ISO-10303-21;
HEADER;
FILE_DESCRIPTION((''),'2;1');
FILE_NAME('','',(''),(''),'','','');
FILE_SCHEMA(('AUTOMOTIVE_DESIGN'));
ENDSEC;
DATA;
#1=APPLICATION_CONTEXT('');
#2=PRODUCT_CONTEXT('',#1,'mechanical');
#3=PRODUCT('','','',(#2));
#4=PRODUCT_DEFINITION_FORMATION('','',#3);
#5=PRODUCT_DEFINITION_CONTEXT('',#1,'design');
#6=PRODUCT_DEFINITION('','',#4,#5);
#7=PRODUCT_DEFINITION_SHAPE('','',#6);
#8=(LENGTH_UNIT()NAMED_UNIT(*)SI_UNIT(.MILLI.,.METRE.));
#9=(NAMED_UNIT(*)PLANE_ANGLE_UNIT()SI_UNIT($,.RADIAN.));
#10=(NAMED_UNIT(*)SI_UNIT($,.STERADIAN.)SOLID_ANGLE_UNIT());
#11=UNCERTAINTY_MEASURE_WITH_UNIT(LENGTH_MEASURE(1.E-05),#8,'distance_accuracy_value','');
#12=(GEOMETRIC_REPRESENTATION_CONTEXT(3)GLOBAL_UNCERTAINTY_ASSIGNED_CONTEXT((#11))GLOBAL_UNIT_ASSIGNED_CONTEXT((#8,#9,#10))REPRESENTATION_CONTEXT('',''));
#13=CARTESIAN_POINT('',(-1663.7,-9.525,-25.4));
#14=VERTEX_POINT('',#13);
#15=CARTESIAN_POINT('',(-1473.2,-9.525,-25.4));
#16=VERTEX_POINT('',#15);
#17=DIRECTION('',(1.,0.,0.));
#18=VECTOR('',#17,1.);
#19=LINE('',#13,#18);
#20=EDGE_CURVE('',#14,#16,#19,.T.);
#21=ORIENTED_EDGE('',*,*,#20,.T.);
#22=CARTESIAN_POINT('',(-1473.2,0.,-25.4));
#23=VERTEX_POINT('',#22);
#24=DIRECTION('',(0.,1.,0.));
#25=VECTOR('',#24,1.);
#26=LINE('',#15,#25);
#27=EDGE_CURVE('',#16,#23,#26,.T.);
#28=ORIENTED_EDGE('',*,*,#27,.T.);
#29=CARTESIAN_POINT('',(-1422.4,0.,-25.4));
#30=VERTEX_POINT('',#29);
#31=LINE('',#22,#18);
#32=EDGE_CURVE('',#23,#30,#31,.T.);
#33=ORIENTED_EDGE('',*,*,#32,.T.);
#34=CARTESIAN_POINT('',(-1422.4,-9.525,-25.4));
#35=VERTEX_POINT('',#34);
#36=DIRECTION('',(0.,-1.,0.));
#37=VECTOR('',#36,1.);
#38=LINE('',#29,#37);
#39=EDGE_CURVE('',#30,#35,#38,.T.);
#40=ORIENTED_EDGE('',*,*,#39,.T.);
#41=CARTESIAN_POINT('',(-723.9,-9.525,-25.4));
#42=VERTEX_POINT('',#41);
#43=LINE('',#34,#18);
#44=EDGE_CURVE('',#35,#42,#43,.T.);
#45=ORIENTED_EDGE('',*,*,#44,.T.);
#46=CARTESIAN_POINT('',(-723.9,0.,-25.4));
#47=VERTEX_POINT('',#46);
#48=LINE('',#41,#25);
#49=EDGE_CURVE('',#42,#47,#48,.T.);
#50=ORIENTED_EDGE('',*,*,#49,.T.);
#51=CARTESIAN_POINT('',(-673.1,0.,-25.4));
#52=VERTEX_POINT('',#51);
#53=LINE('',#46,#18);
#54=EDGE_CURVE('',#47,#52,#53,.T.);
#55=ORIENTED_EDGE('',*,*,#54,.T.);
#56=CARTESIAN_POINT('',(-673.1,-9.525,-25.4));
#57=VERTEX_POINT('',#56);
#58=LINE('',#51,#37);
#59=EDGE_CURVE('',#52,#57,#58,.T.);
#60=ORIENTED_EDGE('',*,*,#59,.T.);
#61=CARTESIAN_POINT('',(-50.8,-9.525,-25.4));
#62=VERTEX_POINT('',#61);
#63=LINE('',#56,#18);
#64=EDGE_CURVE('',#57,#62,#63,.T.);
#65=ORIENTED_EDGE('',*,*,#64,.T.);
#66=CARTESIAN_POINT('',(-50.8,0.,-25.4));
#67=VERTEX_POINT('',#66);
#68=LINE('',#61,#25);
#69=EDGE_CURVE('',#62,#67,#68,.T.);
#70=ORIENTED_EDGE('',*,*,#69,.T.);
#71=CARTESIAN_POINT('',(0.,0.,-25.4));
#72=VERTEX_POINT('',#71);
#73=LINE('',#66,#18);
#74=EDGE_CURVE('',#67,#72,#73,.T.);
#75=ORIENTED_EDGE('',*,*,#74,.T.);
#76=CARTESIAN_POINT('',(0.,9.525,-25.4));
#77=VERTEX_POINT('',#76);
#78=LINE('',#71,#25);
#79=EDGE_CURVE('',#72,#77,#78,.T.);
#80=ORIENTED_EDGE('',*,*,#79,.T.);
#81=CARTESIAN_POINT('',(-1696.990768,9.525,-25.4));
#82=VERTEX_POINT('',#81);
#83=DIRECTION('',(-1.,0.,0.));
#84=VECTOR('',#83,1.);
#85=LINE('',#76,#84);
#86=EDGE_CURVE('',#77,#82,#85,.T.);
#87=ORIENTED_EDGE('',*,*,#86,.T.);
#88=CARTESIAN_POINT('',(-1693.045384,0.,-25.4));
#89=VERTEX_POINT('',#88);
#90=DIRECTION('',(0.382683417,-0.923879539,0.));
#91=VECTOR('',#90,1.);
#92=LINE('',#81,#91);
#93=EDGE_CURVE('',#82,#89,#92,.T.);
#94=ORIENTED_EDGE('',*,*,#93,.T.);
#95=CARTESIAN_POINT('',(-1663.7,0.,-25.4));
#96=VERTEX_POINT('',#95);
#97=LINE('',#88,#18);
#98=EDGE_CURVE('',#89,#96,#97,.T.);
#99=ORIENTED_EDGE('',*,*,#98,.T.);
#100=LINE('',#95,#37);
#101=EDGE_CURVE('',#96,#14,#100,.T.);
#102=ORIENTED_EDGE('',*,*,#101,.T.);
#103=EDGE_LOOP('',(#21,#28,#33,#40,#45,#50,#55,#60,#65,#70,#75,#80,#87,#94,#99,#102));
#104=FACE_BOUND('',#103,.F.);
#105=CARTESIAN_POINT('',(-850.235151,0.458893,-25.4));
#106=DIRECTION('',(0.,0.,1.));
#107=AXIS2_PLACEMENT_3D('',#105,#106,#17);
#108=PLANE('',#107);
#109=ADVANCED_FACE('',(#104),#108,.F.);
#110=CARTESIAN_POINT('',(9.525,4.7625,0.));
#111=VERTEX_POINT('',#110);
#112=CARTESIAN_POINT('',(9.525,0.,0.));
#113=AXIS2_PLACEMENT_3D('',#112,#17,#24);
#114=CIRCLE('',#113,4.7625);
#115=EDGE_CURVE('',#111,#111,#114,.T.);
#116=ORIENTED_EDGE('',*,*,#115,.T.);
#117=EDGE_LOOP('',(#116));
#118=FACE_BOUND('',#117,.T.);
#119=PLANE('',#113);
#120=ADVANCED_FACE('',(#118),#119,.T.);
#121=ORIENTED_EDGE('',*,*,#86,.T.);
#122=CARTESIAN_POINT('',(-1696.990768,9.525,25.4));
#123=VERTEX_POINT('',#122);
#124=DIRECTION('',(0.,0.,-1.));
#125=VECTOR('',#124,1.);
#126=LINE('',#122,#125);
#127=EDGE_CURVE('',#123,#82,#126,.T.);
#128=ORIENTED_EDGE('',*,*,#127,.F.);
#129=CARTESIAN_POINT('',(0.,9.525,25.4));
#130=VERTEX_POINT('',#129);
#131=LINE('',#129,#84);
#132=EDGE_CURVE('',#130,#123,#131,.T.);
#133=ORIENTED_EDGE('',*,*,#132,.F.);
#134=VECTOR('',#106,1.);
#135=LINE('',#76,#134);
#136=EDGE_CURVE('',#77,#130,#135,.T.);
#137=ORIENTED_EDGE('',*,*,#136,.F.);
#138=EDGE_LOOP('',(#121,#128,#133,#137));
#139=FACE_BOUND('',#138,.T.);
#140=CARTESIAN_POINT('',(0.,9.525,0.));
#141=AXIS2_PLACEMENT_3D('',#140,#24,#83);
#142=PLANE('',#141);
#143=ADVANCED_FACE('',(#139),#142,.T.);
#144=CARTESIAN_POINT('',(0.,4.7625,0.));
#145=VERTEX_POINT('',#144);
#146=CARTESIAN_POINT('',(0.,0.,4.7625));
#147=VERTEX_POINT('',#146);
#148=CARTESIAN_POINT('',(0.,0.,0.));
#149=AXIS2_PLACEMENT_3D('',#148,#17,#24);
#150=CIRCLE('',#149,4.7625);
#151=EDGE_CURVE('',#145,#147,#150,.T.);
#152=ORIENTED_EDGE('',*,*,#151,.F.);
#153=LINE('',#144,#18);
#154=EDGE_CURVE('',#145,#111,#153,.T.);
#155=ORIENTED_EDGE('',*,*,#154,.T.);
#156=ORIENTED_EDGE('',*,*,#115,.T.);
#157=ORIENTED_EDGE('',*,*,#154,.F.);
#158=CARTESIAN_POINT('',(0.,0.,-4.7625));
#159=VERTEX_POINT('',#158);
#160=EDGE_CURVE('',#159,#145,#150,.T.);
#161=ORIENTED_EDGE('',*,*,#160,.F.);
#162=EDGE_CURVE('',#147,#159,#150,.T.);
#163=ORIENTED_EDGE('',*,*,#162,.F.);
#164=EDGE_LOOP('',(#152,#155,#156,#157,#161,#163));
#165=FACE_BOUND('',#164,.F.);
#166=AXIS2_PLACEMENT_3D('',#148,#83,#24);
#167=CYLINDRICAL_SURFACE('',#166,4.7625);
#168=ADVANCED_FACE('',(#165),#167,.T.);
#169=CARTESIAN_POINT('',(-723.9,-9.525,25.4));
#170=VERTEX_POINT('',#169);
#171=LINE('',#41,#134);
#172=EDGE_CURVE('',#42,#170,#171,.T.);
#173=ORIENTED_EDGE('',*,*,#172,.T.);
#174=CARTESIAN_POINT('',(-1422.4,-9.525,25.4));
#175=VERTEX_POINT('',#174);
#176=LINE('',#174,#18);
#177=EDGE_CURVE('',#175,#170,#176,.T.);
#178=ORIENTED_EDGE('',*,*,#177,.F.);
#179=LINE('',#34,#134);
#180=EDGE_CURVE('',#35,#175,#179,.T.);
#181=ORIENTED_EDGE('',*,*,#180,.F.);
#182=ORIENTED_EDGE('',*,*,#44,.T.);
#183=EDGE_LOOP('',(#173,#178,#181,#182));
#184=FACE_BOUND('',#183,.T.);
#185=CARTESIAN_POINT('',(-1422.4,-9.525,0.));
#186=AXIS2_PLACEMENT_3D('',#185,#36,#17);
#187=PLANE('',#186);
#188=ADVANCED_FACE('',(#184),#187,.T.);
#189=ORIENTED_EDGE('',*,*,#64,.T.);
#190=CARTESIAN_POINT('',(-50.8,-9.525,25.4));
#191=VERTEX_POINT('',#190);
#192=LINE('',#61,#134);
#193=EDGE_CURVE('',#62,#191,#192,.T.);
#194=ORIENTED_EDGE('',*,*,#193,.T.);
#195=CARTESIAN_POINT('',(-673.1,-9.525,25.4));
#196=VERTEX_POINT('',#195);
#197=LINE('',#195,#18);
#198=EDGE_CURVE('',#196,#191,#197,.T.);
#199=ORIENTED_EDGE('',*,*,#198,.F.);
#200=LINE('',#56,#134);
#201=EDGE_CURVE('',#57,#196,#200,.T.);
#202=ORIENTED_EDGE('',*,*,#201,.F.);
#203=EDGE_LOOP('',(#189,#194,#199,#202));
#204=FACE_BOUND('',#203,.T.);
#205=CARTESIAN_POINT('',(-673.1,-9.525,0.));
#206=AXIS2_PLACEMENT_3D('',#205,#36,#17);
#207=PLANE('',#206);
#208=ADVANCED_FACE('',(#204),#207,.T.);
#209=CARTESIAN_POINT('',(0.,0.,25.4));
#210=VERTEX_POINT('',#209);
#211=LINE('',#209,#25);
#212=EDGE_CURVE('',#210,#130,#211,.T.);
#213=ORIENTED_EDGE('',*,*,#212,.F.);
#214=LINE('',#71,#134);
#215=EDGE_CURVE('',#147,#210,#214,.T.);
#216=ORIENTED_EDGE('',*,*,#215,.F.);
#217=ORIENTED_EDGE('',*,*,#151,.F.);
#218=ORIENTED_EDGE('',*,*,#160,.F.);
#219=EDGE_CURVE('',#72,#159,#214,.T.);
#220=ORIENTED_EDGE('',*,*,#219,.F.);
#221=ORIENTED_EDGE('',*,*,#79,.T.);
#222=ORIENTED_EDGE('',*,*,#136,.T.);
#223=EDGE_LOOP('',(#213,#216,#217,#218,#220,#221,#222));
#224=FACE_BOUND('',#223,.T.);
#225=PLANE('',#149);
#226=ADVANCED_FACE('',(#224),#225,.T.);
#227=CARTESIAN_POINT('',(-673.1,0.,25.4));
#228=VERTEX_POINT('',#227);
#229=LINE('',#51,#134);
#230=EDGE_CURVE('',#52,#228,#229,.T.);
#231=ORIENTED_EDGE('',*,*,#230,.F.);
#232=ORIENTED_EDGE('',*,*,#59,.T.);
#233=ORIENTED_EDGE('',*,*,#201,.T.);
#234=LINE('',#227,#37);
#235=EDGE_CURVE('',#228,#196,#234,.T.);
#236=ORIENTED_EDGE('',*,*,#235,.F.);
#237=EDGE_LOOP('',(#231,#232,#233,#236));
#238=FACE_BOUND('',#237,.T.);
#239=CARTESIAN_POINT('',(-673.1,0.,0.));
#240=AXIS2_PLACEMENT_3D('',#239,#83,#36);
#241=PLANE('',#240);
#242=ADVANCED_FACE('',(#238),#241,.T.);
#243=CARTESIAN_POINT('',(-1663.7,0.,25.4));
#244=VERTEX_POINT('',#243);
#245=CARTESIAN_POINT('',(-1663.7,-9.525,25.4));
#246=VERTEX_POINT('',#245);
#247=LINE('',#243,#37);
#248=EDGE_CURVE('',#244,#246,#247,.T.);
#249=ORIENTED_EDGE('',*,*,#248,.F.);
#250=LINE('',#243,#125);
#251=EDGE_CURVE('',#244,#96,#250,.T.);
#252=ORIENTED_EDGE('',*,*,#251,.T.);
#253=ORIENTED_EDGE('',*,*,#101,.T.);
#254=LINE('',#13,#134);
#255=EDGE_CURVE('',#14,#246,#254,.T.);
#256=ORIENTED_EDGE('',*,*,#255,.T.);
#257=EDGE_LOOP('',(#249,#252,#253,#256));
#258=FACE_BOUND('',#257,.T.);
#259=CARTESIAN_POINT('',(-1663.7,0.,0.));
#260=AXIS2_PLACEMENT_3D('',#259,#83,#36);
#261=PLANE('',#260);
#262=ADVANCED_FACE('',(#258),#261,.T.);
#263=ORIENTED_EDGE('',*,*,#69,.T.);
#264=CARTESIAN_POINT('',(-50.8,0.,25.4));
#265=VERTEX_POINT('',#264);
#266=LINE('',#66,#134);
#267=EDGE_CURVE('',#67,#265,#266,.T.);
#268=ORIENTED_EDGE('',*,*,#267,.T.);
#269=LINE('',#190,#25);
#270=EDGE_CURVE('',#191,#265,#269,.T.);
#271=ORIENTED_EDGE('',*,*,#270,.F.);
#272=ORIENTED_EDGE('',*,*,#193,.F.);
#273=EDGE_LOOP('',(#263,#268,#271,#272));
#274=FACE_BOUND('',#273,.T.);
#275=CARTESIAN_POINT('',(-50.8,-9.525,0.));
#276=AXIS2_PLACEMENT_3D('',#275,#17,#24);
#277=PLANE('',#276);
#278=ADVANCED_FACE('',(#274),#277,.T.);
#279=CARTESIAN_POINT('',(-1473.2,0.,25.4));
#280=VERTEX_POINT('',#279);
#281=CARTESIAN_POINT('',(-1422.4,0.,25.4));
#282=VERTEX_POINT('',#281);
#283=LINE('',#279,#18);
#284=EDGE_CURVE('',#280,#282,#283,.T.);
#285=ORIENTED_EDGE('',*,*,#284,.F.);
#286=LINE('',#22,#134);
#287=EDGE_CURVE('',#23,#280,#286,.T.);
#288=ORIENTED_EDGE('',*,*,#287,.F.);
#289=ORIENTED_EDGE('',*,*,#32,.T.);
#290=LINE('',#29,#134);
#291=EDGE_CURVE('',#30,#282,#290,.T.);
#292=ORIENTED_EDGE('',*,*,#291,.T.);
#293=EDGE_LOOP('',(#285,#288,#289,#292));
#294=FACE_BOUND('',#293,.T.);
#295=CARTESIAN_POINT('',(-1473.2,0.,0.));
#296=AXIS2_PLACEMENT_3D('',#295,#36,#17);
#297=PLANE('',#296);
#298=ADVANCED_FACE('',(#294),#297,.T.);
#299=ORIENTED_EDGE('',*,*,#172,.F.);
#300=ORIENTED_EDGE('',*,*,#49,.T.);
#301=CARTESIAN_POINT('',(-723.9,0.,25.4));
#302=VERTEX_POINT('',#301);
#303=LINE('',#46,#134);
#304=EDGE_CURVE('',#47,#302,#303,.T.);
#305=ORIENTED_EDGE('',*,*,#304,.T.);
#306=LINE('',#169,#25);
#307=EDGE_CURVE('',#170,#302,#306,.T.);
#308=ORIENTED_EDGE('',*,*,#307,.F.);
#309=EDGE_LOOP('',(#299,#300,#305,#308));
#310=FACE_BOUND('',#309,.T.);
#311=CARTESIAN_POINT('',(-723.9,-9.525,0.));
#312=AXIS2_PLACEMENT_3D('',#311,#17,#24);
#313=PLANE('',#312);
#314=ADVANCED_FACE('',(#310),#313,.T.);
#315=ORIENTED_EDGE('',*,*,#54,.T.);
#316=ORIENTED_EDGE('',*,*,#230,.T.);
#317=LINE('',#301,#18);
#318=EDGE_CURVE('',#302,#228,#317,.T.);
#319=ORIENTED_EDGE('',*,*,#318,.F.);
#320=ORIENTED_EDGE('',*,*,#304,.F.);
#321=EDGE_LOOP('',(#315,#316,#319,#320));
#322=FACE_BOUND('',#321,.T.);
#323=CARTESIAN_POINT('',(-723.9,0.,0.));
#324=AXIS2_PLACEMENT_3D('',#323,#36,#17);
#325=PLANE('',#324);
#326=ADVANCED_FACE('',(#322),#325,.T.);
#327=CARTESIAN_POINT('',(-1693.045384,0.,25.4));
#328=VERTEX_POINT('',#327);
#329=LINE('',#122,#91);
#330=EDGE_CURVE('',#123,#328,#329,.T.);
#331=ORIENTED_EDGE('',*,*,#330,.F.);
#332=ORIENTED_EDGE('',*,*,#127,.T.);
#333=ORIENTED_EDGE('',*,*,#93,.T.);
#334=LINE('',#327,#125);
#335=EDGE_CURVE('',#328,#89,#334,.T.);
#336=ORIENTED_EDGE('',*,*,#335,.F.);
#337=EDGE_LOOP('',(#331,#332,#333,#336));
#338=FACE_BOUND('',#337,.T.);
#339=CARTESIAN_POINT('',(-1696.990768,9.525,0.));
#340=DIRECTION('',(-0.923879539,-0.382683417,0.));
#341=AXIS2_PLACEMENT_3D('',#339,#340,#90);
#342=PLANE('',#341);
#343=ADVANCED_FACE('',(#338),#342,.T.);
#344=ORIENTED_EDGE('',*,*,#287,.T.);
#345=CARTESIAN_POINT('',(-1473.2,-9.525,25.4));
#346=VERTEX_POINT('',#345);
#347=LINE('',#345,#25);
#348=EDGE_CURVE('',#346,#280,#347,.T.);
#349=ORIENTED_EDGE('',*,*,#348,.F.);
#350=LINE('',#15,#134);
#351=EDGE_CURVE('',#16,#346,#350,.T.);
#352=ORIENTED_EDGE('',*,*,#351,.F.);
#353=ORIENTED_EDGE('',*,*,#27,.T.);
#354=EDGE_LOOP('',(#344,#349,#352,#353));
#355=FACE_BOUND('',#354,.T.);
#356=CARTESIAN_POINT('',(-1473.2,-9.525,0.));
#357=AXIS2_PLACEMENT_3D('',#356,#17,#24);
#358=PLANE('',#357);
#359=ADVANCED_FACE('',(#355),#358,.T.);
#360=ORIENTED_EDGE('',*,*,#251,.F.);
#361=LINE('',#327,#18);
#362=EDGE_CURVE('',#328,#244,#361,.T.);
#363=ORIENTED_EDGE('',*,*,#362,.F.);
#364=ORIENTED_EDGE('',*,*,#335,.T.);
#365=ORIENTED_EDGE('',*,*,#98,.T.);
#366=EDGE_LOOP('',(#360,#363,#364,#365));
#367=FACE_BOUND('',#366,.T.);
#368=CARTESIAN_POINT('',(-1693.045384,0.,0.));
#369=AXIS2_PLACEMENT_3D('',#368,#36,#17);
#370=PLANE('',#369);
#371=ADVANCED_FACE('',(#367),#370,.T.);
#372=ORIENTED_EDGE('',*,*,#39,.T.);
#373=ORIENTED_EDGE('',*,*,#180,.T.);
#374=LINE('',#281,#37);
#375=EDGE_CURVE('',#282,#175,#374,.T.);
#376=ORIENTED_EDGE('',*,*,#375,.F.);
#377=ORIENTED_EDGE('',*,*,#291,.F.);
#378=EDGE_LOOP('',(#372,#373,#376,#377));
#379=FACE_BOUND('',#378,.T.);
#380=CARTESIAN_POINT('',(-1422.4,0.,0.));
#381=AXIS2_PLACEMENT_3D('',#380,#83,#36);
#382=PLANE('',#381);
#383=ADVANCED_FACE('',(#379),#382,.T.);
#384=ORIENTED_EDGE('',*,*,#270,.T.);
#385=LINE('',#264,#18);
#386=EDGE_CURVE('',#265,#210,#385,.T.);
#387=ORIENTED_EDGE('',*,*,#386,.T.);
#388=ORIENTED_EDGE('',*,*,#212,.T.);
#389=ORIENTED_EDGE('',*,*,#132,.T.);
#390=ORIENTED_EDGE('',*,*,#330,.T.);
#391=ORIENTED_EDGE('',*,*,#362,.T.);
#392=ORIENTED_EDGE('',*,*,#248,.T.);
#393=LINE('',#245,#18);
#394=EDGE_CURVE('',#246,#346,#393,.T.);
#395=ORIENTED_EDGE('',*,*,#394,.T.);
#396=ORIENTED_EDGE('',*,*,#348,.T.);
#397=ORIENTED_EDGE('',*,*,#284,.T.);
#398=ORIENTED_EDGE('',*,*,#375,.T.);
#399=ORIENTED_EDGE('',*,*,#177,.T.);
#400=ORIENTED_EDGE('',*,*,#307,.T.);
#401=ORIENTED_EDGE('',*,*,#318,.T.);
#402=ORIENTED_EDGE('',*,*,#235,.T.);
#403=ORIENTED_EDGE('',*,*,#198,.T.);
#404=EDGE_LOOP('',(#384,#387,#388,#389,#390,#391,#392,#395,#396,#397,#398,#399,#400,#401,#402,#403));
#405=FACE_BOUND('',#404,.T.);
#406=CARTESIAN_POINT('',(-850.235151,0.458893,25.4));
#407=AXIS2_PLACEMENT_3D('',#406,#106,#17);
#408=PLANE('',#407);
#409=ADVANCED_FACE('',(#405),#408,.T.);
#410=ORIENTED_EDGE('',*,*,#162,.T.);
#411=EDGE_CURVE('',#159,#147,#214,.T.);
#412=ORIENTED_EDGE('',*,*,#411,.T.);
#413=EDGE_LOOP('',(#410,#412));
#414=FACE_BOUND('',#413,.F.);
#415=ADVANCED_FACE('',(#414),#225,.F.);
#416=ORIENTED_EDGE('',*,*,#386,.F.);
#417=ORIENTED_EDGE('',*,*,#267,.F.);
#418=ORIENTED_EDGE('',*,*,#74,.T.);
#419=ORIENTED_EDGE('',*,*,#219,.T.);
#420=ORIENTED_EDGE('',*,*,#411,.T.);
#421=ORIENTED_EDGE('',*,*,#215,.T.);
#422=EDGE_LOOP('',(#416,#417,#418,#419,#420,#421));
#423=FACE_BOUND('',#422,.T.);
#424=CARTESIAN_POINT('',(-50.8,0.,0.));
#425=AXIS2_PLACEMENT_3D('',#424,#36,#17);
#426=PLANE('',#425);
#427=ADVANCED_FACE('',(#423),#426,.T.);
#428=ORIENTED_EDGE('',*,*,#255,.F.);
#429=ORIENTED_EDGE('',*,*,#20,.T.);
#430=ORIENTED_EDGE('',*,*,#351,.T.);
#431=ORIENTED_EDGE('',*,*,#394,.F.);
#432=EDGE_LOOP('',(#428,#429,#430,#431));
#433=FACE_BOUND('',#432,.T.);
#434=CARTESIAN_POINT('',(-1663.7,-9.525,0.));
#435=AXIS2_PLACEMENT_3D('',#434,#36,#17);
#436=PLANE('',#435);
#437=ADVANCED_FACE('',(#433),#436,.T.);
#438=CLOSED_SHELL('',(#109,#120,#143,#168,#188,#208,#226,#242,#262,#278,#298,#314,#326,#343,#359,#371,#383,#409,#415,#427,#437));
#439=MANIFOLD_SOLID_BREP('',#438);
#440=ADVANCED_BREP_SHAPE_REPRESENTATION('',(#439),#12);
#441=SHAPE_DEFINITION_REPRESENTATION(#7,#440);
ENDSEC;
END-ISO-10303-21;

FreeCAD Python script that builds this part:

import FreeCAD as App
import Part
import Sketcher

V = App.Vector
Q = App.Units.Quantity


def add_polygon(sketch, points):
    """Adds a closed chain of lines whose ends are joined by coincident constraints."""
    first, n = sketch.GeometryCount, len(points)
    for a, b in zip(points, points[1:] + points[:1]):
        sketch.addGeometry(Part.LineSegment(App.Vector(*a, 0), App.Vector(*b, 0)), False)
    for i in range(n):
        sketch.addConstraint(Sketcher.Constraint("Coincident", first + i, 2, first + (i + 1) % n, 1))

doc = App.newDocument("Part")
body = doc.addObject("PartDesign::Body", "Body")

sketch1 = doc.addObject("Sketcher::SketchObject", "Sketch")
body.addObject(sketch1)
sketch1.AttachmentSupport = (doc.XY_Plane, [""])
sketch1.MapMode = "FlatFace"
add_polygon(sketch1, [(-1664, 0), (-1664, -10), (-1473, -10), (-1473, 0), (-1422, 0), (-1422, -10), (-724, -10), (-724, 0), (-673, 0), (-673, -10), (-51, -10), (-51, 0), (0, 0), (0, 10), (-1697, 10), (-1693, 0)])
sketch1.addConstraint([
    Sketcher.Constraint("Vertical", 0),
    Sketcher.Constraint("Horizontal", 1),
    Sketcher.Constraint("Vertical", 2),
    Sketcher.Constraint("Horizontal", 3),
    Sketcher.Constraint("Vertical", 4),
    Sketcher.Constraint("Horizontal", 5),
    Sketcher.Constraint("Vertical", 6),
    Sketcher.Constraint("Horizontal", 7),
    Sketcher.Constraint("Vertical", 8),
    Sketcher.Constraint("Horizontal", 9),
    Sketcher.Constraint("Vertical", 10),
    Sketcher.Constraint("Horizontal", 11),
    Sketcher.Constraint("Vertical", 12),
    Sketcher.Constraint("Horizontal", 13),
    Sketcher.Constraint("Horizontal", 15),
    Sketcher.Constraint("Coincident", 11, 2, -1, 1),
    Sketcher.Constraint("PointOnObject", 2, 2, -1),
    Sketcher.Constraint("PointOnObject", 6, 2, -1),
    Sketcher.Constraint("PointOnObject", 14, 2, -1),
    Sketcher.Constraint("Horizontal", 1, 2, 4, 2),
    Sketcher.Constraint("Horizontal", 5, 2, 8, 2),
    Sketcher.Constraint("Equal", 3, 7),
    Sketcher.Constraint("Equal", 7, 11),
    Sketcher.Constraint("Equal", 10, 12),
    Sketcher.Constraint("DistanceX", 3, 1, 3, 2, Q("2 in")),
    Sketcher.Constraint("DistanceX", 1, 1, 1, 2, Q("7.5 in")),
    Sketcher.Constraint("DistanceX", 5, 1, 5, 2, Q("27.5 in")),
    Sketcher.Constraint("DistanceX", 9, 1, 9, 2, Q("24.5 in")),
    Sketcher.Constraint("Angle", 14, Q("-67.500001 deg")),
    Sketcher.Constraint("DistanceY", 0, 2, 0, 1, Q("0.375 in")),
    Sketcher.Constraint("DistanceX", 13, 2, 13, 1, 1696.990768),
])
pad1 = doc.addObject("PartDesign::Pad", "Pad")
body.addObject(pad1)
pad1.Profile = sketch1
pad1.Length = Q("2 in")
pad1.Midplane = True

sketch2 = doc.addObject("Sketcher::SketchObject", "Sketch001")
body.addObject(sketch2)
sketch2.AttachmentSupport = (doc.YZ_Plane, [""])
sketch2.MapMode = "FlatFace"
sketch2.addGeometry(Part.Circle(V(0, 0, 0), V(0, 0, 1), 4.8), False)
sketch2.addConstraint([
    Sketcher.Constraint("Coincident", 0, 3, -1, 1),
    Sketcher.Constraint("Diameter", 0, Q("0.375 in")),
])
pad2 = doc.addObject("PartDesign::Pad", "Pad001")
body.addObject(pad2)
pad2.Profile = sketch2
pad2.Length = Q("0.375 in")

doc.recompute()
